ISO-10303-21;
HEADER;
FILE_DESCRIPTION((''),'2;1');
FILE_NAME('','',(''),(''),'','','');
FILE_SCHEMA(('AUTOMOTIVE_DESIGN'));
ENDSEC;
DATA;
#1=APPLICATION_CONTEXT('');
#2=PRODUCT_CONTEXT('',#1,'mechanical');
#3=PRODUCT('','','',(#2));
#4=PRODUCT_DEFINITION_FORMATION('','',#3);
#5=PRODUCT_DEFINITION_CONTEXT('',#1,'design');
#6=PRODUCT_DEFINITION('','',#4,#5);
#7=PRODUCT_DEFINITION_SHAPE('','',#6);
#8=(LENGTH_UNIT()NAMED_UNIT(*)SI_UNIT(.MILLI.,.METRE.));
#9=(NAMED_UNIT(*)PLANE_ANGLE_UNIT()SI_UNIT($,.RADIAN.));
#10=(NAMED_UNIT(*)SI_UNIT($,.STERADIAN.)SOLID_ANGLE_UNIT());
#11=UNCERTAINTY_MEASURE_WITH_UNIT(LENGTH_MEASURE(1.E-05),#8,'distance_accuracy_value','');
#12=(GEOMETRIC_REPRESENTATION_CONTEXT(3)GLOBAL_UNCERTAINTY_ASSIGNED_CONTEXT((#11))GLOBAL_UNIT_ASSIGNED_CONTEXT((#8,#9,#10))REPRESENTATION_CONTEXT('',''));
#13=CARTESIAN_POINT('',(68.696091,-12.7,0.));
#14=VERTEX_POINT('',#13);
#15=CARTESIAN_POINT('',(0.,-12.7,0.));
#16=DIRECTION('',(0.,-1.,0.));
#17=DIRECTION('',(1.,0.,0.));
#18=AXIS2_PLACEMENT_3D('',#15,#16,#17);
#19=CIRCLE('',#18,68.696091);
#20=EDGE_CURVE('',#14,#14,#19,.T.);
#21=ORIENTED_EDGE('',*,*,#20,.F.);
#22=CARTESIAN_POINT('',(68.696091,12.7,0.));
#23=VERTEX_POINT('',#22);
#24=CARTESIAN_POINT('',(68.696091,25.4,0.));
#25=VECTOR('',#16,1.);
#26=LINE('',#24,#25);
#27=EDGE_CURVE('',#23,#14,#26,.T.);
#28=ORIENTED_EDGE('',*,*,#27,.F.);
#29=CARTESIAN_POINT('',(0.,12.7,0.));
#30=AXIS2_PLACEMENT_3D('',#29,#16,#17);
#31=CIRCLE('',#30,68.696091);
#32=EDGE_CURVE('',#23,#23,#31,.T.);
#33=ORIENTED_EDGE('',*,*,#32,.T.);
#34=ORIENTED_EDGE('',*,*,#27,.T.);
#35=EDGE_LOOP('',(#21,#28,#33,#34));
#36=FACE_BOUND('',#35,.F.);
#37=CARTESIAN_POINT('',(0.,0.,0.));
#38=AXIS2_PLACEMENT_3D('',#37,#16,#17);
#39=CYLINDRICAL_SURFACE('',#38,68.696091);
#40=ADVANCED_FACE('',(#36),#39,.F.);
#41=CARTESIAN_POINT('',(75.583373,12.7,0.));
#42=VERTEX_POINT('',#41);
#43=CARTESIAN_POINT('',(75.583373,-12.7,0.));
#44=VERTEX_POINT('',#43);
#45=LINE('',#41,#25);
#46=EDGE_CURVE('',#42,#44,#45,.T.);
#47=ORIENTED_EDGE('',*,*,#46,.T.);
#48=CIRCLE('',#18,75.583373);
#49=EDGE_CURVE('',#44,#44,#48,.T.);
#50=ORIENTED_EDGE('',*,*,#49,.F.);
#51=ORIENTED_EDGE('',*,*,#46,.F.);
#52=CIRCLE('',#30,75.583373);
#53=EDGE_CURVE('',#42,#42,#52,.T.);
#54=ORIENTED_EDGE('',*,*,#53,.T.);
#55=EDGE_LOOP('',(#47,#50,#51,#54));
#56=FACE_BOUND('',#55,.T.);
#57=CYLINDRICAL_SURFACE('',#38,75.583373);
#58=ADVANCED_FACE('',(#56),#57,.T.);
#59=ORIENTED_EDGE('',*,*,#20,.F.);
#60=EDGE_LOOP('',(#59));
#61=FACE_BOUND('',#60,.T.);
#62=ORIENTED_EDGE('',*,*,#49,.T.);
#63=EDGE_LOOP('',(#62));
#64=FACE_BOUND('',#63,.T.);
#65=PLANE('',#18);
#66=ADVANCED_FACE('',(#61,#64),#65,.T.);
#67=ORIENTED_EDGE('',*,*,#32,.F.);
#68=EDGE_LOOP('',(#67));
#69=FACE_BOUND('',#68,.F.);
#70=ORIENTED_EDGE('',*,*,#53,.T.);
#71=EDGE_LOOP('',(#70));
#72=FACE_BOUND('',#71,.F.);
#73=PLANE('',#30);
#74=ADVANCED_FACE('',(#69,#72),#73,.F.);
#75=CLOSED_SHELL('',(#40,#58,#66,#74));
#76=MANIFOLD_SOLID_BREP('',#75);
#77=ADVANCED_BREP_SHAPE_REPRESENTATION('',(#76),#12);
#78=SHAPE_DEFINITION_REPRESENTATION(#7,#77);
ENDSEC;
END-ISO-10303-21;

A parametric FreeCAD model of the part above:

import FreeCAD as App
import Part
import Sketcher

V = App.Vector
Q = App.Units.Quantity

doc = App.newDocument("Part")
body = doc.addObject("PartDesign::Body", "Body")

# Sketch on XZ plane
sketch1 = doc.addObject("Sketcher::SketchObject", "Sketch")
body.addObject(sketch1)
sketch1.AttachmentSupport = (doc.XZ_Plane, [""])
sketch1.MapMode = "FlatFace"
sketch1.addGeometry(Part.Circle(V(0, 0, 0), V(0, 0, 1), 76), False)
sketch1.addConstraint([
    Sketcher.Constraint("Coincident", 0, 3, -1, 1),
    Sketcher.Constraint("Diameter", 0, 151.166746),
])
pad1 = doc.addObject("PartDesign::Pad", "Pad")
body.addObject(pad1)
pad1.Profile = sketch1
pad1.Length = Q("1 in")
pad1.Midplane = True

# Sketch on XZ plane
sketch2 = doc.addObject("Sketcher::SketchObject", "Sketch001")
body.addObject(sketch2)
sketch2.AttachmentSupport = (doc.XZ_Plane, [""])
sketch2.MapMode = "FlatFace"
sketch2.addGeometry(Part.Circle(V(0, 0, 0), V(0, 0, 1), 69), False)
sketch2.addConstraint([
    Sketcher.Constraint("Coincident", 0, 3, -1, 1),
    Sketcher.Constraint("Diameter", 0, 137.392182),
])
pocket1 = doc.addObject("PartDesign::Pocket", "Pocket")
body.addObject(pocket1)
pocket1.Profile = sketch2
pocket1.Length = Q("2 in")
pocket1.Midplane = True

doc.recompute()
